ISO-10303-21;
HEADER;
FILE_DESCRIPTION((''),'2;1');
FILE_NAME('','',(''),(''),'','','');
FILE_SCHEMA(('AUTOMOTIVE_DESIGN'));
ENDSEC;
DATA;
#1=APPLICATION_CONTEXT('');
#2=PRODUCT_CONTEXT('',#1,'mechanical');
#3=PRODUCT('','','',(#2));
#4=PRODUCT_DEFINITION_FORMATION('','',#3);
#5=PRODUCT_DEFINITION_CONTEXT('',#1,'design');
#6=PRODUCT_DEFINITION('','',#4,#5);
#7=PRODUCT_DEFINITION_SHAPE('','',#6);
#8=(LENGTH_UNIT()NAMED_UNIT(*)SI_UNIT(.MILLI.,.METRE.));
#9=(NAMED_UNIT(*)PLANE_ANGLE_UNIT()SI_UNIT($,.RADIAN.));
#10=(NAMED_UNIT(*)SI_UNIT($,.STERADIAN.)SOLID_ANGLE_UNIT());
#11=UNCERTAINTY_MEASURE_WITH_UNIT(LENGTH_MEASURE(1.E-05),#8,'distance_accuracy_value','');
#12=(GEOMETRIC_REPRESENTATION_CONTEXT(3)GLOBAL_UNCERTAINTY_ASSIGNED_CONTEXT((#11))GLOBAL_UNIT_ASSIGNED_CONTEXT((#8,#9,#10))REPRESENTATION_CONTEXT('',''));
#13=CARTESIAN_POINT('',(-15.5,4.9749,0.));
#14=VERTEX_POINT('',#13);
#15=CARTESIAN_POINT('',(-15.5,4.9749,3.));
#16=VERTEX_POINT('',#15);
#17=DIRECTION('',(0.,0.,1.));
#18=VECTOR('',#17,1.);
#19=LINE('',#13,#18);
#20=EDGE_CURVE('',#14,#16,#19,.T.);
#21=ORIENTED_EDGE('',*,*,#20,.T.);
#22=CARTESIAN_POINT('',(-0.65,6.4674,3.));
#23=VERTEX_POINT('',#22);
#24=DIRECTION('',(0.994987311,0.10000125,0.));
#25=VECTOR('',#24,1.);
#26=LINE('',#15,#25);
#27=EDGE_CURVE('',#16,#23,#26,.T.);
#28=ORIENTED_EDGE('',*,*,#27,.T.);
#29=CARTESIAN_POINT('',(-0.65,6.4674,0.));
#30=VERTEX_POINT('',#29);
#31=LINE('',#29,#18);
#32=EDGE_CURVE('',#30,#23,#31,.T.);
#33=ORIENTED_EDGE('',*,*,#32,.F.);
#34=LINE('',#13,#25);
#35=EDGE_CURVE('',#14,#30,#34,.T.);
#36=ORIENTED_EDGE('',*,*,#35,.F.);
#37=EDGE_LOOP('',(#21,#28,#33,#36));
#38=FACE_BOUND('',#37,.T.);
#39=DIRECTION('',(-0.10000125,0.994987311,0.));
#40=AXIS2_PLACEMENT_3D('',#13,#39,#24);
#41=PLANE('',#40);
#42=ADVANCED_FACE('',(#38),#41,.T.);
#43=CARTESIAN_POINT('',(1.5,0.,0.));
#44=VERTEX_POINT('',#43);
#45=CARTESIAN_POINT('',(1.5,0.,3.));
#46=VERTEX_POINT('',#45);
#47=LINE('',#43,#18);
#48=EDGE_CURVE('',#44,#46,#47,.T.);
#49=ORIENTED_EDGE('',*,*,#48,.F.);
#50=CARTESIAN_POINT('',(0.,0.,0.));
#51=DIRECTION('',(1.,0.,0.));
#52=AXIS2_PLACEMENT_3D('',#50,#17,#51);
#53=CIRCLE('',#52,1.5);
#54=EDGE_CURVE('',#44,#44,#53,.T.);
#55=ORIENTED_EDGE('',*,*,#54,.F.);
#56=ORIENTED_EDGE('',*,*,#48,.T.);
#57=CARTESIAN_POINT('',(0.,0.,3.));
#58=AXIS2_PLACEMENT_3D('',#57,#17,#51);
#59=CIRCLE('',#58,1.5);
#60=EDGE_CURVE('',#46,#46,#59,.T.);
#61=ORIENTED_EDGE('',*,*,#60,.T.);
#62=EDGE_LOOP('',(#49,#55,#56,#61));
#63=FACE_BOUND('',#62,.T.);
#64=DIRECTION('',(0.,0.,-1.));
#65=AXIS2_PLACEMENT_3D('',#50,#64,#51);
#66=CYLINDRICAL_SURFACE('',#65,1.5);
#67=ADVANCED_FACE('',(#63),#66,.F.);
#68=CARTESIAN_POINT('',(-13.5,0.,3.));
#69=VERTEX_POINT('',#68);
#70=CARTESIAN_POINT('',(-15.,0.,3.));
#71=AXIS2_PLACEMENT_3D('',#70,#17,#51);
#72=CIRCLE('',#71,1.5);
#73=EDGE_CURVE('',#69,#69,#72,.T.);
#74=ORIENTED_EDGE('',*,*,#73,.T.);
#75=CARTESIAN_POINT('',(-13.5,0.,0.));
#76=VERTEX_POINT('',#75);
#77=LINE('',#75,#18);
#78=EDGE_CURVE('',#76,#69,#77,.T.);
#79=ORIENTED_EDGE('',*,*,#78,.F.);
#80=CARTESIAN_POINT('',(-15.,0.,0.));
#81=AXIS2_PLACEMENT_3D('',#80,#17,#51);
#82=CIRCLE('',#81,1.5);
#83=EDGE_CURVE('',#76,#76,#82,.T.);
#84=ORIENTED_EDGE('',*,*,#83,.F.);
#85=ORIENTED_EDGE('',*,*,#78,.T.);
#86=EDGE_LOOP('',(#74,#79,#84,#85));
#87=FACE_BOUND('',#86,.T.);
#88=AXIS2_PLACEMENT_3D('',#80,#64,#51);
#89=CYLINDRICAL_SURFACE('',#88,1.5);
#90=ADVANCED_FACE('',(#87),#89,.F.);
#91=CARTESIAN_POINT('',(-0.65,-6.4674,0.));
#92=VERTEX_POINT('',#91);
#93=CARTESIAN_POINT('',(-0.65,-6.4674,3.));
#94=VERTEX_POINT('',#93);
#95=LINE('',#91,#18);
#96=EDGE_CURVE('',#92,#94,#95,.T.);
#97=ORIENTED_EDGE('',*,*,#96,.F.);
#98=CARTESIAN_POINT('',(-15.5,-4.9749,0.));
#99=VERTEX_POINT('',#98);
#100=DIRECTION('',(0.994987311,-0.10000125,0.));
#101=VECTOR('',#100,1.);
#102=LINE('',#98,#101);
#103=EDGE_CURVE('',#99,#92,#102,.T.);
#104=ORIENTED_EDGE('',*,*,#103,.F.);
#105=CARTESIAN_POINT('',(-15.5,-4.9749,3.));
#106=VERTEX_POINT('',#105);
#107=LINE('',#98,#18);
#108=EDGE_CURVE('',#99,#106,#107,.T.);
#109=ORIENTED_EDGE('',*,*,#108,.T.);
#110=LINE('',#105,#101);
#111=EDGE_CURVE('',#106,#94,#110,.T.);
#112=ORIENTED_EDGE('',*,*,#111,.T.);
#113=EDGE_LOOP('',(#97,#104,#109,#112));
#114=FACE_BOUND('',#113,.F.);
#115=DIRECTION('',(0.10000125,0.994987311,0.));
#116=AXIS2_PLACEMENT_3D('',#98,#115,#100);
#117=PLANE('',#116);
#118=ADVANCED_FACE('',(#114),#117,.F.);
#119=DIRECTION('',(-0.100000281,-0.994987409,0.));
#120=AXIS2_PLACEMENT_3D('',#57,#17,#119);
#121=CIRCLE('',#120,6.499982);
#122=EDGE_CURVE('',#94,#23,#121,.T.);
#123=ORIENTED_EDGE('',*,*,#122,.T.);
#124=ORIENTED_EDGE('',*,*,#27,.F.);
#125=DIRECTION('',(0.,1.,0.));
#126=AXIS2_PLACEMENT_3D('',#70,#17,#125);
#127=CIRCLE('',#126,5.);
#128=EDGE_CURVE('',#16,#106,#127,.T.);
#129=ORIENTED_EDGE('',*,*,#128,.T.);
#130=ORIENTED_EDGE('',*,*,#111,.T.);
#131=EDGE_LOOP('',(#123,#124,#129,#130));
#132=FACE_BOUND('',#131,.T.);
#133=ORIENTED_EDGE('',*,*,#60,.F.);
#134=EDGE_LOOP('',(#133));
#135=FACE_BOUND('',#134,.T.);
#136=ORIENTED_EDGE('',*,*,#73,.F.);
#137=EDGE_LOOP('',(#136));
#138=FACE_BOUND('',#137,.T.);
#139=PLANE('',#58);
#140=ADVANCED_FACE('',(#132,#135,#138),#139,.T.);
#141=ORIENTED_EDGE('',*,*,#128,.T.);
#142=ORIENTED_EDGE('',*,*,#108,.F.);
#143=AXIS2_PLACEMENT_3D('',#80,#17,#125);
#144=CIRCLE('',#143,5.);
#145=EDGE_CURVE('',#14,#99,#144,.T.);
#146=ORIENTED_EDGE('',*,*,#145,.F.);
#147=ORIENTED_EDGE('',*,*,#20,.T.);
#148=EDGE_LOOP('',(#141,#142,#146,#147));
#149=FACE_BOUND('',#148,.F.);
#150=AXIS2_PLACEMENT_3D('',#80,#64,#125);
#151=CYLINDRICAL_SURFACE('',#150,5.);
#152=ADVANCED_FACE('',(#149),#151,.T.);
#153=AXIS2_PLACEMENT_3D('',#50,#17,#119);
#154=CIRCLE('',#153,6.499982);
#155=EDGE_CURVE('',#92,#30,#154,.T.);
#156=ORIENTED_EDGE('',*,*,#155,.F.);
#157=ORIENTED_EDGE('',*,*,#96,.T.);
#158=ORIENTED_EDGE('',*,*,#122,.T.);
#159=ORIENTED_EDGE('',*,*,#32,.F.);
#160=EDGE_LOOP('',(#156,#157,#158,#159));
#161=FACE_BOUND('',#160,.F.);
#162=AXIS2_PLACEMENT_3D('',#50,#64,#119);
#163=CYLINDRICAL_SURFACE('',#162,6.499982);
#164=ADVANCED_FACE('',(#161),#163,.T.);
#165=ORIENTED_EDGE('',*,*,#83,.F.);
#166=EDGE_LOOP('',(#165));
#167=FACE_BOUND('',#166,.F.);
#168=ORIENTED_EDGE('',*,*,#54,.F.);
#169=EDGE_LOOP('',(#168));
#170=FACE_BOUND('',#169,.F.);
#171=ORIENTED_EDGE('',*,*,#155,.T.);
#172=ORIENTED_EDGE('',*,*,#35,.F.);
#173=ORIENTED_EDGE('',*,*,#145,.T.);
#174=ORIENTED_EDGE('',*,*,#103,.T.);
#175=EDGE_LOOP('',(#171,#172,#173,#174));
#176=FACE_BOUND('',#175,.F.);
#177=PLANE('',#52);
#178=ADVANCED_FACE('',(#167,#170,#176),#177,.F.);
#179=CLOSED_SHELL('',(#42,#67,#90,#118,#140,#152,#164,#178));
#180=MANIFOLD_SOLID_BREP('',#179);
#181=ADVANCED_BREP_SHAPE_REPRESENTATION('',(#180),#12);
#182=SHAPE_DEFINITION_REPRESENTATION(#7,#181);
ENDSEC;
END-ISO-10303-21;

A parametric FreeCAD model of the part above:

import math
import FreeCAD as App
import Part
import Sketcher

doc = App.newDocument("Part")
params = doc.addObject("Spreadsheet::Sheet", "Params")
for row, (alias, value) in enumerate([
    ("sketch1_diameter", "3 mm"),
    ("sketch1_radius", "5 mm"),
    ("sketch1_radius2", "6.5 mm"),
    ("pad1_length", "3 mm"),
], start=1):
    params.set(f"A{row}", alias)
    params.set(f"B{row}", "=" + value)
    params.setAlias(f"B{row}", alias)

body = doc.addObject("PartDesign::Body", "Body")

sketch1 = doc.addObject("Sketcher::SketchObject", "Sketch")
body.addObject(sketch1)
sketch1.AttachmentSupport = (doc.XY_Plane, [""])
sketch1.MapMode = "FlatFace"
sketch1.addGeometry([
    Part.LineSegment(App.Vector(-0.7, 6.5, 0), App.Vector(-15.5, 5, 0)),
    Part.ArcOfCircle(Part.Circle(App.Vector(-15, 0, 0), App.Vector(0, 0, 1), 5), math.radians(96), math.radians(264)),
    Part.LineSegment(App.Vector(-15.5, -5, 0), App.Vector(-0.7, -6.5, 0)),
    Part.ArcOfCircle(Part.Circle(App.Vector(0, 0, 0), App.Vector(0, 0, 1), 6.5), math.radians(-96), math.radians(96)),
    Part.Circle(App.Vector(-15, 0, 0), App.Vector(0, 0, 1), 1.5),
    Part.Circle(App.Vector(0, 0, 0), App.Vector(0, 0, 1), 1.5),
], False)
sketch1.addConstraint([
    Sketcher.Constraint("Tangent", 0, 2, 1, 1),
    Sketcher.Constraint("Tangent", 1, 2, 2, 1),
    Sketcher.Constraint("Tangent", 2, 2, 3, 1),
    Sketcher.Constraint("Tangent", 3, 2, 0, 1),
    Sketcher.Constraint("Coincident", 3, 3, -1, 1),
    Sketcher.Constraint("Coincident", 5, 3, -1, 1),
    Sketcher.Constraint("Coincident", 4, 3, 1, 3),
    Sketcher.Constraint("Equal", 4, 5),
    Sketcher.Constraint("PointOnObject", 1, 3, -1),
    Sketcher.Constraint("Diameter", 4, 3.0),
    Sketcher.Constraint("Radius", 1, 5.0),
    Sketcher.Constraint("Radius", 3, 6.5),
    Sketcher.Constraint("DistanceX", 1, 3, -1, 1, 15.0),
])
sketch1.setExpression("Constraints[9]", "Params.sketch1_diameter")
sketch1.setExpression("Constraints[10]", "Params.sketch1_radius")
sketch1.setExpression("Constraints[11]", "Params.sketch1_radius2")
pad1 = doc.addObject("PartDesign::Pad", "Pad")
body.addObject(pad1)
pad1.Profile = sketch1
pad1.setExpression("Length", "Params.pad1_length")

doc.recompute()
